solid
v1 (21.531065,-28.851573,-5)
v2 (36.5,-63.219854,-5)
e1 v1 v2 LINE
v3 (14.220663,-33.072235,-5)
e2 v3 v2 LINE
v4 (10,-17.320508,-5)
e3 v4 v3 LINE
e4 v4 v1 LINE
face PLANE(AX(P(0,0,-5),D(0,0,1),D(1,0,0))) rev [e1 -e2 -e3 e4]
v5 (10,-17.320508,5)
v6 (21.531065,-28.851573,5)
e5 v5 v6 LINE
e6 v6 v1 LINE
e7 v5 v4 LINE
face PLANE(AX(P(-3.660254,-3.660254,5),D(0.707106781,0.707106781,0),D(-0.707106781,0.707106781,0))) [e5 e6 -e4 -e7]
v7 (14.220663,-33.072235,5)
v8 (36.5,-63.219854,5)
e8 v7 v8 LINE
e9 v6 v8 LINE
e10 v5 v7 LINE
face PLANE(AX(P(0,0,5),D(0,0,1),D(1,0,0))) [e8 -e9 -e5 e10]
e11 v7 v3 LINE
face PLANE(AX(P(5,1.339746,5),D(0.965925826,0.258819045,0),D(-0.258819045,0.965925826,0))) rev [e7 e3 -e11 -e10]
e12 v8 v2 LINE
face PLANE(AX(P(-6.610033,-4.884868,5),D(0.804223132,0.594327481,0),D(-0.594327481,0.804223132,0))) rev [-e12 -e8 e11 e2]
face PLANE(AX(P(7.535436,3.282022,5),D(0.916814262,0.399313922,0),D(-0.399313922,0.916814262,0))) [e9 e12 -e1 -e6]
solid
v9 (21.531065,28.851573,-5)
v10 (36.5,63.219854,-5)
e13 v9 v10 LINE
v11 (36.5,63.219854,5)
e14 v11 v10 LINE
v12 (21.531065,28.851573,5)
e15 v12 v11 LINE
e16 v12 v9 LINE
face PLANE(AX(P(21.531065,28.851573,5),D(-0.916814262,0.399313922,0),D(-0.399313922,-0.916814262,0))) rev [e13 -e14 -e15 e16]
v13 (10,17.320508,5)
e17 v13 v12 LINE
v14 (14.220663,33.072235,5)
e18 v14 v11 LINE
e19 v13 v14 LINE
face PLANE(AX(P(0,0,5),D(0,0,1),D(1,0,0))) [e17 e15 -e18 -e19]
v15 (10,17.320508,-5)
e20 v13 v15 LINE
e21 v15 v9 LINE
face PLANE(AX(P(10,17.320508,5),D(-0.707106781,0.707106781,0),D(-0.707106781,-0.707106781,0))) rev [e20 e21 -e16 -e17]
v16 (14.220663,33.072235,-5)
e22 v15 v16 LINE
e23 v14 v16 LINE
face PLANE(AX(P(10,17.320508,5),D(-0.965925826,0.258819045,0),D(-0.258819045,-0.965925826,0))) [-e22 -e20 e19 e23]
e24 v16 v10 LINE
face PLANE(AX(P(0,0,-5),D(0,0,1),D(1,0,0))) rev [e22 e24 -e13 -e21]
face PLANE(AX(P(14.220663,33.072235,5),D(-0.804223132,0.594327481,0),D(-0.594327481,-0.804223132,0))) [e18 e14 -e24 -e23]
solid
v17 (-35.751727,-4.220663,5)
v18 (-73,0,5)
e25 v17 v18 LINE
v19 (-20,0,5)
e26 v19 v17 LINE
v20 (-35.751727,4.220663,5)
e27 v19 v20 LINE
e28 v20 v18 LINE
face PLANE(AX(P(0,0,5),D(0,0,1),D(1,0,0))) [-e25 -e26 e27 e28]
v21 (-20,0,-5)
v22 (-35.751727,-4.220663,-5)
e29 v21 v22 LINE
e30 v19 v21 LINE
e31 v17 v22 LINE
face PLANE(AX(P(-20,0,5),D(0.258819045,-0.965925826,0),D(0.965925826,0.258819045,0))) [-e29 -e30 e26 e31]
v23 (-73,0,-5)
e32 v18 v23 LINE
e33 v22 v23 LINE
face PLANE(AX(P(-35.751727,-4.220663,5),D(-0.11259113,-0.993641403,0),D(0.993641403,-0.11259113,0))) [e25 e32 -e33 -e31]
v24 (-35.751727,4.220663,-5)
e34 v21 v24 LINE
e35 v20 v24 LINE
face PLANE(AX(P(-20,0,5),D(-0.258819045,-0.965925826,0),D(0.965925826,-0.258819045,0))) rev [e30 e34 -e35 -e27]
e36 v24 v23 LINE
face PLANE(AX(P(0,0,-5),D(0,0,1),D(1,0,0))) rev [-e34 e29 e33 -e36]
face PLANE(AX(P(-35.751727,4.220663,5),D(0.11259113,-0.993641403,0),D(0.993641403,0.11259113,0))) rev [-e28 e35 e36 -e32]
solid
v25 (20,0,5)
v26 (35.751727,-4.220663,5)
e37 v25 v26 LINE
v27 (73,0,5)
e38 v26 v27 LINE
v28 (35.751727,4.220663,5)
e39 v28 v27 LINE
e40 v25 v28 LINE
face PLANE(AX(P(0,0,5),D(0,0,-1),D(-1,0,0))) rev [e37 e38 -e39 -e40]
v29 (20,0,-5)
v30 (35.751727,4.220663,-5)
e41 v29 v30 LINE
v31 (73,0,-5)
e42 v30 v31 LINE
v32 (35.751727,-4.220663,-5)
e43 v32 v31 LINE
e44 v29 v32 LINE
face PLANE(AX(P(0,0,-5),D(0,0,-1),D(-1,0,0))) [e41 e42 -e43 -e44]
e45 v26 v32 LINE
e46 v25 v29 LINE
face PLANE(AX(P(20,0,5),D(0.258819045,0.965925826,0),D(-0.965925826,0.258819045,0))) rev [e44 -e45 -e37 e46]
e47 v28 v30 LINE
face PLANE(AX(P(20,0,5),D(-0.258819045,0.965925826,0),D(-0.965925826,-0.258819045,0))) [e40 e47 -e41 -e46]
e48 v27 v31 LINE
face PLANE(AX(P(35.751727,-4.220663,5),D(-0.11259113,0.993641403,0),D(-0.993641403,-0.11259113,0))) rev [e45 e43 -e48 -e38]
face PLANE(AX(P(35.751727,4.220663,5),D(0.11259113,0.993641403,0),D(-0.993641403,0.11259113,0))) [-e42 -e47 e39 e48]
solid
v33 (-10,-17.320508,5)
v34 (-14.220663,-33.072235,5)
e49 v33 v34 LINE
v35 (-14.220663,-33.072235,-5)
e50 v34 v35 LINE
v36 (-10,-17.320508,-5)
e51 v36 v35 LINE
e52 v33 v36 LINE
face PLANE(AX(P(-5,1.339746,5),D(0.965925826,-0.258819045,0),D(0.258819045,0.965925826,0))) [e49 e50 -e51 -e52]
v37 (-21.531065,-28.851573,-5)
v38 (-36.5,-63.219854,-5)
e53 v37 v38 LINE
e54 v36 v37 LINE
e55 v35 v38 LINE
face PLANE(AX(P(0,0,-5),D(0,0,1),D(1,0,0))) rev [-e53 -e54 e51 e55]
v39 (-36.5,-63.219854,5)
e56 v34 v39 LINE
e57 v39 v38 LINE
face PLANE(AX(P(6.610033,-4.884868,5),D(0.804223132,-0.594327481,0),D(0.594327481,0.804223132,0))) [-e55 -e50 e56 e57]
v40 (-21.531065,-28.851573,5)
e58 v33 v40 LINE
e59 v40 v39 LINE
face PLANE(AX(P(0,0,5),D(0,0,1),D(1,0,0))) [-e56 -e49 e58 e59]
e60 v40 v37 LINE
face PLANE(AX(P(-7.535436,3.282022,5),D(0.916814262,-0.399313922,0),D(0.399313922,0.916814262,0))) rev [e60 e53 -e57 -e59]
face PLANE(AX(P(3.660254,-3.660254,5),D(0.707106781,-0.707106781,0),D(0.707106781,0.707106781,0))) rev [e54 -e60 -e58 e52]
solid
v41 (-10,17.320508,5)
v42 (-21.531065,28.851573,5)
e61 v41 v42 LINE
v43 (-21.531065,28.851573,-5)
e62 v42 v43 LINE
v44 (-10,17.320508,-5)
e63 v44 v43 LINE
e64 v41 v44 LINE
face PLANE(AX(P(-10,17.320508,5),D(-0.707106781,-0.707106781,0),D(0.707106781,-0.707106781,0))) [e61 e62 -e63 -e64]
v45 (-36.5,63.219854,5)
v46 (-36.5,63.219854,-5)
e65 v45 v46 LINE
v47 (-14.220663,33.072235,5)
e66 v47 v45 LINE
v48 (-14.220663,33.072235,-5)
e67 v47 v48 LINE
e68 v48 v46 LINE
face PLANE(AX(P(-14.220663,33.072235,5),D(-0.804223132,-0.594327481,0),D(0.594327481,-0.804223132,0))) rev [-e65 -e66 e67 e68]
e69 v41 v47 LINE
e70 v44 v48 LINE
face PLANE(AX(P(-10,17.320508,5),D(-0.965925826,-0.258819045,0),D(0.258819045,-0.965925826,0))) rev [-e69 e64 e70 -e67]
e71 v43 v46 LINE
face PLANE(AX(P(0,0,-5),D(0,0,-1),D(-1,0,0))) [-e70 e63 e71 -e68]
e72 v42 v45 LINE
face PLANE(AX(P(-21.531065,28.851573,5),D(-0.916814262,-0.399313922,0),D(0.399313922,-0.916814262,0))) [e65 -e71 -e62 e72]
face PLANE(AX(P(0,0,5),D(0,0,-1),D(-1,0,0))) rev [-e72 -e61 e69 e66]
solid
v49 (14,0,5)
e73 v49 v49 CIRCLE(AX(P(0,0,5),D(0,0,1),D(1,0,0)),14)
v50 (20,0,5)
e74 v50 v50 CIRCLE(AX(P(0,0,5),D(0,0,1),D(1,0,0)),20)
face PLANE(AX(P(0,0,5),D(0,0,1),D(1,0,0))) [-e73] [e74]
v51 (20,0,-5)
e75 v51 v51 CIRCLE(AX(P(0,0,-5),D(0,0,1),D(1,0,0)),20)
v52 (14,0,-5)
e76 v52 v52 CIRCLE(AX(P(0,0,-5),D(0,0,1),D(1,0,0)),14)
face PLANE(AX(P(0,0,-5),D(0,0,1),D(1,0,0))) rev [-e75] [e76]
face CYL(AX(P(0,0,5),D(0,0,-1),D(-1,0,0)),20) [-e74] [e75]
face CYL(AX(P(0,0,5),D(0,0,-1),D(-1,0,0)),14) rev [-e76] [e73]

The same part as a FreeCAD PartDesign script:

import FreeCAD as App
import Part
import Sketcher
from FreeCAD import Vector
Q = App.Units.Quantity

doc = App.newDocument("Part")
params = doc.addObject("Spreadsheet::Sheet", "Params")
for row, (alias, value) in enumerate([
    ("sketch1_diameter", "40 mm"),
    ("sketch1_diameter2", "28 mm"),
    ("pad1_length", "10 mm"),
    ("pad2_length", "10 mm"),
    ("pad3_length", "10 mm"),
    ("pad4_length", "10 mm"),
    ("pad5_length", "10 mm"),
    ("pad6_length", "10 mm"),
    ("pad7_length", "10 mm"),
], start=1):
    params.set(f"A{row}", alias)
    params.set(f"B{row}", "=" + value)
    params.setAlias(f"B{row}", alias)

body = doc.addObject("PartDesign::Body", "Body")

# Sketch on XY plane
sketch1 = body.newObject("Sketcher::SketchObject", "Sketch")
sketch1.AttachmentSupport = (doc.getObject("XY_Plane"), [""])
sketch1.MapMode = "FlatFace"
sketch1.addGeometry(Part.Circle(Vector(0, 0, 0), Vector(0, 0, 1), 20), False)
sketch1.addGeometry(Part.Circle(Vector(0, 0, 0), Vector(0, 0, 1), 14), False)
sketch1.addConstraint(Sketcher.Constraint("Coincident", 0, 3, -1, 1))
sketch1.addConstraint(Sketcher.Constraint("Coincident", 1, 3, -1, 1))
sketch1.addConstraint(Sketcher.Constraint("Diameter", 0, Q("40 mm")))
sketch1.addConstraint(Sketcher.Constraint("Diameter", 1, Q("28 mm")))
sketch1.setExpression("Constraints[2]", "Params.sketch1_diameter")
sketch1.setExpression("Constraints[3]", "Params.sketch1_diameter2")
pad1 = body.newObject("PartDesign::Pad", "Pad")
pad1.Profile = sketch1
pad1.setExpression("Length", "Params.pad1_length")
pad1.Midplane = True
body2 = doc.addObject("PartDesign::Body", "Body001")

# Sketch on XY plane
sketch2 = body2.newObject("Sketcher::SketchObject", "Sketch001")
sketch2.AttachmentSupport = (doc.getObject("XY_Plane001"), [""])
sketch2.MapMode = "FlatFace"
sketch2.addGeometry(Part.LineSegment(Vector(-14, -33, 0), Vector(-10, -17, 0)), False)
sketch2.addGeometry(Part.LineSegment(Vector(-10, -17, 0), Vector(-22, -29, 0)), False)
sketch2.addGeometry(Part.LineSegment(Vector(-22, -29, 0), Vector(-36, -63, 0)), False)
sketch2.addGeometry(Part.LineSegment(Vector(-36, -63, 0), Vector(-14, -33, 0)), False)
sketch2.addConstraint(Sketcher.Constraint("Coincident", 0, 2, 1, 1))
sketch2.addConstraint(Sketcher.Constraint("Coincident", 1, 2, 2, 1))
sketch2.addConstraint(Sketcher.Constraint("Coincident", 2, 2, 3, 1))
sketch2.addConstraint(Sketcher.Constraint("Coincident", 3, 2, 0, 1))
sketch2.addConstraint(Sketcher.Constraint("Equal", 0, 1))
sketch2.addConstraint(Sketcher.Constraint("Equal", 2, 3))
sketch2.addConstraint(Sketcher.Constraint("Angle", 0, Q("75 deg")))
sketch2.addConstraint(Sketcher.Constraint("Angle", 1, Q("-135 deg")))
sketch2.addConstraint(Sketcher.Constraint("DistanceX", 0, 2, -1, 1, Q("10 mm")))
sketch2.addConstraint(Sketcher.Constraint("DistanceX", 2, 2, -1, 1, Q("36.5 mm")))
sketch2.addConstraint(Sketcher.Constraint("Distance", 0, Q("16.307388 mm")))
sketch2.addConstraint(Sketcher.Constraint("DistanceY", 0, 2, -1, 1, Q("17.320508 mm")))
pad2 = body2.newObject("PartDesign::Pad", "Pad001")
pad2.Profile = sketch2
pad2.setExpression("Length", "Params.pad2_length")
pad2.Midplane = True
body3 = doc.addObject("PartDesign::Body", "Body002")

# Sketch on XY plane
sketch3 = body3.newObject("Sketcher::SketchObject", "Sketch002")
sketch3.AttachmentSupport = (doc.getObject("XY_Plane002"), [""])
sketch3.MapMode = "FlatFace"
sketch3.addGeometry(Part.LineSegment(Vector(22, -29, 0), Vector(10, -17, 0)), False)
sketch3.addGeometry(Part.LineSegment(Vector(10, -17, 0), Vector(14, -33, 0)), False)
sketch3.addGeometry(Part.LineSegment(Vector(14, -33, 0), Vector(36, -63, 0)), False)
sketch3.addGeometry(Part.LineSegment(Vector(36, -63, 0), Vector(22, -29, 0)), False)
sketch3.addConstraint(Sketcher.Constraint("Coincident", 0, 2, 1, 1))
sketch3.addConstraint(Sketcher.Constraint("Coincident", 1, 2, 2, 1))
sketch3.addConstraint(Sketcher.Constraint("Coincident", 2, 2, 3, 1))
sketch3.addConstraint(Sketcher.Constraint("Coincident", 3, 2, 0, 1))
sketch3.addConstraint(Sketcher.Constraint("Equal", 0, 1))
sketch3.addConstraint(Sketcher.Constraint("Equal", 2, 3))
sketch3.addConstraint(Sketcher.Constraint("Angle", 0, Q("135 deg")))
sketch3.addConstraint(Sketcher.Constraint("Angle", 1, Q("-75 deg")))
sketch3.addConstraint(Sketcher.Constraint("DistanceX", -1, 1, 0, 2, Q("10 mm")))
sketch3.addConstraint(Sketcher.Constraint("DistanceX", -1, 1, 2, 2, Q("36.5 mm")))
sketch3.addConstraint(Sketcher.Constraint("Distance", 0, Q("16.307388 mm")))
sketch3.addConstraint(Sketcher.Constraint("DistanceY", 0, 2, -1, 1, Q("17.320508 mm")))
pad3 = body3.newObject("PartDesign::Pad", "Pad002")
pad3.Profile = sketch3
pad3.setExpression("Length", "Params.pad3_length")
pad3.Midplane = True
body4 = doc.addObject("PartDesign::Body", "Body003")

# Sketch on XY plane
sketch4 = body4.newObject("Sketcher::SketchObject", "Sketch003")
sketch4.AttachmentSupport = (doc.getObject("XY_Plane003"), [""])
sketch4.MapMode = "FlatFace"
sketch4.addGeometry(Part.LineSegment(Vector(-10, 17, 0), Vector(-14, 33, 0)), False)
sketch4.addGeometry(Part.LineSegment(Vector(-14, 33, 0), Vector(-36, 63, 0)), False)
sketch4.addGeometry(Part.LineSegment(Vector(-36, 63, 0), Vector(-22, 29, 0)), False)
sketch4.addGeometry(Part.LineSegment(Vector(-22, 29, 0), Vector(-10, 17, 0)), False)
sketch4.addConstraint(Sketcher.Constraint("Coincident", 0, 2, 1, 1))
sketch4.addConstraint(Sketcher.Constraint("Coincident", 1, 2, 2, 1))
sketch4.addConstraint(Sketcher.Constraint("Coincident", 2, 2, 3, 1))
sketch4.addConstraint(Sketcher.Constraint("Coincident", 3, 2, 0, 1))
sketch4.addConstraint(Sketcher.Constraint("Equal", 1, 2))
sketch4.addConstraint(Sketcher.Constraint("Equal", 0, 3))
sketch4.addConstraint(Sketcher.Constraint("Angle", 0, Q("105 deg")))
sketch4.addConstraint(Sketcher.Constraint("Angle", 3, Q("-45 deg")))
sketch4.addConstraint(Sketcher.Constraint("DistanceX", 3, 2, -1, 1, Q("10 mm")))
sketch4.addConstraint(Sketcher.Constraint("DistanceX", 1, 2, -1, 1, Q("36.5 mm")))
sketch4.addConstraint(Sketcher.Constraint("Distance", 0, Q("16.307388 mm")))
sketch4.addConstraint(Sketcher.Constraint("DistanceY", -1, 1, 3, 2, Q("17.320508 mm")))
pad4 = body4.newObject("PartDesign::Pad", "Pad003")
pad4.Profile = sketch4
pad4.setExpression("Length", "Params.pad4_length")
pad4.Midplane = True
body5 = doc.addObject("PartDesign::Body", "Body004")

# Sketch on XY plane
sketch5 = body5.newObject("Sketcher::SketchObject", "Sketch004")
sketch5.AttachmentSupport = (doc.getObject("XY_Plane004"), [""])
sketch5.MapMode = "FlatFace"
sketch5.addGeometry(Part.LineSegment(Vector(-36, 4, 0), Vector(-73, 0, 0)), False)
sketch5.addGeometry(Part.LineSegment(Vector(-73, 0, 0), Vector(-36, -4, 0)), False)
sketch5.addGeometry(Part.LineSegment(Vector(-36, -4, 0), Vector(-20, 0, 0)), False)
sketch5.addGeometry(Part.LineSegment(Vector(-20, 0, 0), Vector(-36, 4, 0)), False)
sketch5.addConstraint(Sketcher.Constraint("Coincident", 0, 2, 1, 1))
sketch5.addConstraint(Sketcher.Constraint("Coincident", 1, 2, 2, 1))
sketch5.addConstraint(Sketcher.Constraint("Coincident", 2, 2, 3, 1))
sketch5.addConstraint(Sketcher.Constraint("Coincident", 3, 2, 0, 1))
sketch5.addConstraint(Sketcher.Constraint("Symmetric", 1, 2, 3, 2, -1))
sketch5.addConstraint(Sketcher.Constraint("PointOnObject", 0, 2, -1))
sketch5.addConstraint(Sketcher.Constraint("PointOnObject", 2, 2, -1))
sketch5.addConstraint(Sketcher.Constraint("Angle", 2, Q("15 deg")))
sketch5.addConstraint(Sketcher.Constraint("DistanceX", 0, 2, -1, 1, Q("73 mm")))
sketch5.addConstraint(Sketcher.Constraint("DistanceX", 2, 2, -1, 1, Q("20 mm")))
sketch5.addConstraint(Sketcher.Constraint("Distance", 2, Q("16.307388 mm")))
pad5 = body5.newObject("PartDesign::Pad", "Pad004")
pad5.Profile = sketch5
pad5.setExpression("Length", "Params.pad5_length")
pad5.Midplane = True
body6 = doc.addObject("PartDesign::Body", "Body005")

# Sketch on XY plane
sketch6 = body6.newObject("Sketcher::SketchObject", "Sketch005")
sketch6.AttachmentSupport = (doc.getObject("XY_Plane005"), [""])
sketch6.MapMode = "FlatFace"
sketch6.addGeometry(Part.LineSegment(Vector(73, 0, 0), Vector(36, 4, 0)), False)
sketch6.addGeometry(Part.LineSegment(Vector(36, 4, 0), Vector(20, 0, 0)), False)
sketch6.addGeometry(Part.LineSegment(Vector(20, 0, 0), Vector(36, -4, 0)), False)
sketch6.addGeometry(Part.LineSegment(Vector(36, -4, 0), Vector(73, 0, 0)), False)
sketch6.addConstraint(Sketcher.Constraint("Coincident", 0, 2, 1, 1))
sketch6.addConstraint(Sketcher.Constraint("Coincident", 1, 2, 2, 1))
sketch6.addConstraint(Sketcher.Constraint("Coincident", 2, 2, 3, 1))
sketch6.addConstraint(Sketcher.Constraint("Coincident", 3, 2, 0, 1))
sketch6.addConstraint(Sketcher.Constraint("Symmetric", 0, 2, 2, 2, -1))
sketch6.addConstraint(Sketcher.Constraint("PointOnObject", 1, 2, -1))
sketch6.addConstraint(Sketcher.Constraint("PointOnObject", 3, 2, -1))
sketch6.addConstraint(Sketcher.Constraint("Angle", 1, Q("-165 deg")))
sketch6.addConstraint(Sketcher.Constraint("DistanceX", -1, 1, 1, 2, Q("20 mm")))
sketch6.addConstraint(Sketcher.Constraint("DistanceX", -1, 1, 3, 2, Q("73 mm")))
sketch6.addConstraint(Sketcher.Constraint("Distance", 1, Q("16.307388 mm")))
pad6 = body6.newObject("PartDesign::Pad", "Pad005")
pad6.Profile = sketch6
pad6.setExpression("Length", "Params.pad6_length")
pad6.Midplane = True
body7 = doc.addObject("PartDesign::Body", "Body006")

# Sketch on XY plane
sketch7 = body7.newObject("Sketcher::SketchObject", "Sketch006")
sketch7.AttachmentSupport = (doc.getObject("XY_Plane006"), [""])
sketch7.MapMode = "FlatFace"
sketch7.addGeometry(Part.LineSegment(Vector(22, 29, 0), Vector(36, 63, 0)), False)
sketch7.addGeometry(Part.LineSegment(Vector(36, 63, 0), Vector(14, 33, 0)), False)
sketch7.addGeometry(Part.LineSegment(Vector(14, 33, 0), Vector(10, 17, 0)), False)
sketch7.addGeometry(Part.LineSegment(Vector(10, 17, 0), Vector(22, 29, 0)), False)
sketch7.addConstraint(Sketcher.Constraint("Coincident", 0, 2, 1, 1))
sketch7.addConstraint(Sketcher.Constraint("Coincident", 1, 2, 2, 1))
sketch7.addConstraint(Sketcher.Constraint("Coincident", 2, 2, 3, 1))
sketch7.addConstraint(Sketcher.Constraint("Coincident", 3, 2, 0, 1))
sketch7.addConstraint(Sketcher.Constraint("Equal", 0, 1))
sketch7.addConstraint(Sketcher.Constraint("Equal", 2, 3))
sketch7.addConstraint(Sketcher.Constraint("Angle", 2, Q("-105 deg")))
sketch7.addConstraint(Sketcher.Constraint("Angle", 3, Q("45 deg")))
sketch7.addConstraint(Sketcher.Constraint("DistanceX", -1, 1, 2, 2, Q("10 mm")))
sketch7.addConstraint(Sketcher.Constraint("DistanceX", -1, 1, 0, 2, Q("36.5 mm")))
sketch7.addConstraint(Sketcher.Constraint("Distance", 2, Q("16.307388 mm")))
sketch7.addConstraint(Sketcher.Constraint("DistanceY", -1, 1, 2, 2, Q("17.320508 mm")))
pad7 = body7.newObject("PartDesign::Pad", "Pad006")
pad7.Profile = sketch7
pad7.setExpression("Length", "Params.pad7_length")
pad7.Midplane = True

doc.recompute()
